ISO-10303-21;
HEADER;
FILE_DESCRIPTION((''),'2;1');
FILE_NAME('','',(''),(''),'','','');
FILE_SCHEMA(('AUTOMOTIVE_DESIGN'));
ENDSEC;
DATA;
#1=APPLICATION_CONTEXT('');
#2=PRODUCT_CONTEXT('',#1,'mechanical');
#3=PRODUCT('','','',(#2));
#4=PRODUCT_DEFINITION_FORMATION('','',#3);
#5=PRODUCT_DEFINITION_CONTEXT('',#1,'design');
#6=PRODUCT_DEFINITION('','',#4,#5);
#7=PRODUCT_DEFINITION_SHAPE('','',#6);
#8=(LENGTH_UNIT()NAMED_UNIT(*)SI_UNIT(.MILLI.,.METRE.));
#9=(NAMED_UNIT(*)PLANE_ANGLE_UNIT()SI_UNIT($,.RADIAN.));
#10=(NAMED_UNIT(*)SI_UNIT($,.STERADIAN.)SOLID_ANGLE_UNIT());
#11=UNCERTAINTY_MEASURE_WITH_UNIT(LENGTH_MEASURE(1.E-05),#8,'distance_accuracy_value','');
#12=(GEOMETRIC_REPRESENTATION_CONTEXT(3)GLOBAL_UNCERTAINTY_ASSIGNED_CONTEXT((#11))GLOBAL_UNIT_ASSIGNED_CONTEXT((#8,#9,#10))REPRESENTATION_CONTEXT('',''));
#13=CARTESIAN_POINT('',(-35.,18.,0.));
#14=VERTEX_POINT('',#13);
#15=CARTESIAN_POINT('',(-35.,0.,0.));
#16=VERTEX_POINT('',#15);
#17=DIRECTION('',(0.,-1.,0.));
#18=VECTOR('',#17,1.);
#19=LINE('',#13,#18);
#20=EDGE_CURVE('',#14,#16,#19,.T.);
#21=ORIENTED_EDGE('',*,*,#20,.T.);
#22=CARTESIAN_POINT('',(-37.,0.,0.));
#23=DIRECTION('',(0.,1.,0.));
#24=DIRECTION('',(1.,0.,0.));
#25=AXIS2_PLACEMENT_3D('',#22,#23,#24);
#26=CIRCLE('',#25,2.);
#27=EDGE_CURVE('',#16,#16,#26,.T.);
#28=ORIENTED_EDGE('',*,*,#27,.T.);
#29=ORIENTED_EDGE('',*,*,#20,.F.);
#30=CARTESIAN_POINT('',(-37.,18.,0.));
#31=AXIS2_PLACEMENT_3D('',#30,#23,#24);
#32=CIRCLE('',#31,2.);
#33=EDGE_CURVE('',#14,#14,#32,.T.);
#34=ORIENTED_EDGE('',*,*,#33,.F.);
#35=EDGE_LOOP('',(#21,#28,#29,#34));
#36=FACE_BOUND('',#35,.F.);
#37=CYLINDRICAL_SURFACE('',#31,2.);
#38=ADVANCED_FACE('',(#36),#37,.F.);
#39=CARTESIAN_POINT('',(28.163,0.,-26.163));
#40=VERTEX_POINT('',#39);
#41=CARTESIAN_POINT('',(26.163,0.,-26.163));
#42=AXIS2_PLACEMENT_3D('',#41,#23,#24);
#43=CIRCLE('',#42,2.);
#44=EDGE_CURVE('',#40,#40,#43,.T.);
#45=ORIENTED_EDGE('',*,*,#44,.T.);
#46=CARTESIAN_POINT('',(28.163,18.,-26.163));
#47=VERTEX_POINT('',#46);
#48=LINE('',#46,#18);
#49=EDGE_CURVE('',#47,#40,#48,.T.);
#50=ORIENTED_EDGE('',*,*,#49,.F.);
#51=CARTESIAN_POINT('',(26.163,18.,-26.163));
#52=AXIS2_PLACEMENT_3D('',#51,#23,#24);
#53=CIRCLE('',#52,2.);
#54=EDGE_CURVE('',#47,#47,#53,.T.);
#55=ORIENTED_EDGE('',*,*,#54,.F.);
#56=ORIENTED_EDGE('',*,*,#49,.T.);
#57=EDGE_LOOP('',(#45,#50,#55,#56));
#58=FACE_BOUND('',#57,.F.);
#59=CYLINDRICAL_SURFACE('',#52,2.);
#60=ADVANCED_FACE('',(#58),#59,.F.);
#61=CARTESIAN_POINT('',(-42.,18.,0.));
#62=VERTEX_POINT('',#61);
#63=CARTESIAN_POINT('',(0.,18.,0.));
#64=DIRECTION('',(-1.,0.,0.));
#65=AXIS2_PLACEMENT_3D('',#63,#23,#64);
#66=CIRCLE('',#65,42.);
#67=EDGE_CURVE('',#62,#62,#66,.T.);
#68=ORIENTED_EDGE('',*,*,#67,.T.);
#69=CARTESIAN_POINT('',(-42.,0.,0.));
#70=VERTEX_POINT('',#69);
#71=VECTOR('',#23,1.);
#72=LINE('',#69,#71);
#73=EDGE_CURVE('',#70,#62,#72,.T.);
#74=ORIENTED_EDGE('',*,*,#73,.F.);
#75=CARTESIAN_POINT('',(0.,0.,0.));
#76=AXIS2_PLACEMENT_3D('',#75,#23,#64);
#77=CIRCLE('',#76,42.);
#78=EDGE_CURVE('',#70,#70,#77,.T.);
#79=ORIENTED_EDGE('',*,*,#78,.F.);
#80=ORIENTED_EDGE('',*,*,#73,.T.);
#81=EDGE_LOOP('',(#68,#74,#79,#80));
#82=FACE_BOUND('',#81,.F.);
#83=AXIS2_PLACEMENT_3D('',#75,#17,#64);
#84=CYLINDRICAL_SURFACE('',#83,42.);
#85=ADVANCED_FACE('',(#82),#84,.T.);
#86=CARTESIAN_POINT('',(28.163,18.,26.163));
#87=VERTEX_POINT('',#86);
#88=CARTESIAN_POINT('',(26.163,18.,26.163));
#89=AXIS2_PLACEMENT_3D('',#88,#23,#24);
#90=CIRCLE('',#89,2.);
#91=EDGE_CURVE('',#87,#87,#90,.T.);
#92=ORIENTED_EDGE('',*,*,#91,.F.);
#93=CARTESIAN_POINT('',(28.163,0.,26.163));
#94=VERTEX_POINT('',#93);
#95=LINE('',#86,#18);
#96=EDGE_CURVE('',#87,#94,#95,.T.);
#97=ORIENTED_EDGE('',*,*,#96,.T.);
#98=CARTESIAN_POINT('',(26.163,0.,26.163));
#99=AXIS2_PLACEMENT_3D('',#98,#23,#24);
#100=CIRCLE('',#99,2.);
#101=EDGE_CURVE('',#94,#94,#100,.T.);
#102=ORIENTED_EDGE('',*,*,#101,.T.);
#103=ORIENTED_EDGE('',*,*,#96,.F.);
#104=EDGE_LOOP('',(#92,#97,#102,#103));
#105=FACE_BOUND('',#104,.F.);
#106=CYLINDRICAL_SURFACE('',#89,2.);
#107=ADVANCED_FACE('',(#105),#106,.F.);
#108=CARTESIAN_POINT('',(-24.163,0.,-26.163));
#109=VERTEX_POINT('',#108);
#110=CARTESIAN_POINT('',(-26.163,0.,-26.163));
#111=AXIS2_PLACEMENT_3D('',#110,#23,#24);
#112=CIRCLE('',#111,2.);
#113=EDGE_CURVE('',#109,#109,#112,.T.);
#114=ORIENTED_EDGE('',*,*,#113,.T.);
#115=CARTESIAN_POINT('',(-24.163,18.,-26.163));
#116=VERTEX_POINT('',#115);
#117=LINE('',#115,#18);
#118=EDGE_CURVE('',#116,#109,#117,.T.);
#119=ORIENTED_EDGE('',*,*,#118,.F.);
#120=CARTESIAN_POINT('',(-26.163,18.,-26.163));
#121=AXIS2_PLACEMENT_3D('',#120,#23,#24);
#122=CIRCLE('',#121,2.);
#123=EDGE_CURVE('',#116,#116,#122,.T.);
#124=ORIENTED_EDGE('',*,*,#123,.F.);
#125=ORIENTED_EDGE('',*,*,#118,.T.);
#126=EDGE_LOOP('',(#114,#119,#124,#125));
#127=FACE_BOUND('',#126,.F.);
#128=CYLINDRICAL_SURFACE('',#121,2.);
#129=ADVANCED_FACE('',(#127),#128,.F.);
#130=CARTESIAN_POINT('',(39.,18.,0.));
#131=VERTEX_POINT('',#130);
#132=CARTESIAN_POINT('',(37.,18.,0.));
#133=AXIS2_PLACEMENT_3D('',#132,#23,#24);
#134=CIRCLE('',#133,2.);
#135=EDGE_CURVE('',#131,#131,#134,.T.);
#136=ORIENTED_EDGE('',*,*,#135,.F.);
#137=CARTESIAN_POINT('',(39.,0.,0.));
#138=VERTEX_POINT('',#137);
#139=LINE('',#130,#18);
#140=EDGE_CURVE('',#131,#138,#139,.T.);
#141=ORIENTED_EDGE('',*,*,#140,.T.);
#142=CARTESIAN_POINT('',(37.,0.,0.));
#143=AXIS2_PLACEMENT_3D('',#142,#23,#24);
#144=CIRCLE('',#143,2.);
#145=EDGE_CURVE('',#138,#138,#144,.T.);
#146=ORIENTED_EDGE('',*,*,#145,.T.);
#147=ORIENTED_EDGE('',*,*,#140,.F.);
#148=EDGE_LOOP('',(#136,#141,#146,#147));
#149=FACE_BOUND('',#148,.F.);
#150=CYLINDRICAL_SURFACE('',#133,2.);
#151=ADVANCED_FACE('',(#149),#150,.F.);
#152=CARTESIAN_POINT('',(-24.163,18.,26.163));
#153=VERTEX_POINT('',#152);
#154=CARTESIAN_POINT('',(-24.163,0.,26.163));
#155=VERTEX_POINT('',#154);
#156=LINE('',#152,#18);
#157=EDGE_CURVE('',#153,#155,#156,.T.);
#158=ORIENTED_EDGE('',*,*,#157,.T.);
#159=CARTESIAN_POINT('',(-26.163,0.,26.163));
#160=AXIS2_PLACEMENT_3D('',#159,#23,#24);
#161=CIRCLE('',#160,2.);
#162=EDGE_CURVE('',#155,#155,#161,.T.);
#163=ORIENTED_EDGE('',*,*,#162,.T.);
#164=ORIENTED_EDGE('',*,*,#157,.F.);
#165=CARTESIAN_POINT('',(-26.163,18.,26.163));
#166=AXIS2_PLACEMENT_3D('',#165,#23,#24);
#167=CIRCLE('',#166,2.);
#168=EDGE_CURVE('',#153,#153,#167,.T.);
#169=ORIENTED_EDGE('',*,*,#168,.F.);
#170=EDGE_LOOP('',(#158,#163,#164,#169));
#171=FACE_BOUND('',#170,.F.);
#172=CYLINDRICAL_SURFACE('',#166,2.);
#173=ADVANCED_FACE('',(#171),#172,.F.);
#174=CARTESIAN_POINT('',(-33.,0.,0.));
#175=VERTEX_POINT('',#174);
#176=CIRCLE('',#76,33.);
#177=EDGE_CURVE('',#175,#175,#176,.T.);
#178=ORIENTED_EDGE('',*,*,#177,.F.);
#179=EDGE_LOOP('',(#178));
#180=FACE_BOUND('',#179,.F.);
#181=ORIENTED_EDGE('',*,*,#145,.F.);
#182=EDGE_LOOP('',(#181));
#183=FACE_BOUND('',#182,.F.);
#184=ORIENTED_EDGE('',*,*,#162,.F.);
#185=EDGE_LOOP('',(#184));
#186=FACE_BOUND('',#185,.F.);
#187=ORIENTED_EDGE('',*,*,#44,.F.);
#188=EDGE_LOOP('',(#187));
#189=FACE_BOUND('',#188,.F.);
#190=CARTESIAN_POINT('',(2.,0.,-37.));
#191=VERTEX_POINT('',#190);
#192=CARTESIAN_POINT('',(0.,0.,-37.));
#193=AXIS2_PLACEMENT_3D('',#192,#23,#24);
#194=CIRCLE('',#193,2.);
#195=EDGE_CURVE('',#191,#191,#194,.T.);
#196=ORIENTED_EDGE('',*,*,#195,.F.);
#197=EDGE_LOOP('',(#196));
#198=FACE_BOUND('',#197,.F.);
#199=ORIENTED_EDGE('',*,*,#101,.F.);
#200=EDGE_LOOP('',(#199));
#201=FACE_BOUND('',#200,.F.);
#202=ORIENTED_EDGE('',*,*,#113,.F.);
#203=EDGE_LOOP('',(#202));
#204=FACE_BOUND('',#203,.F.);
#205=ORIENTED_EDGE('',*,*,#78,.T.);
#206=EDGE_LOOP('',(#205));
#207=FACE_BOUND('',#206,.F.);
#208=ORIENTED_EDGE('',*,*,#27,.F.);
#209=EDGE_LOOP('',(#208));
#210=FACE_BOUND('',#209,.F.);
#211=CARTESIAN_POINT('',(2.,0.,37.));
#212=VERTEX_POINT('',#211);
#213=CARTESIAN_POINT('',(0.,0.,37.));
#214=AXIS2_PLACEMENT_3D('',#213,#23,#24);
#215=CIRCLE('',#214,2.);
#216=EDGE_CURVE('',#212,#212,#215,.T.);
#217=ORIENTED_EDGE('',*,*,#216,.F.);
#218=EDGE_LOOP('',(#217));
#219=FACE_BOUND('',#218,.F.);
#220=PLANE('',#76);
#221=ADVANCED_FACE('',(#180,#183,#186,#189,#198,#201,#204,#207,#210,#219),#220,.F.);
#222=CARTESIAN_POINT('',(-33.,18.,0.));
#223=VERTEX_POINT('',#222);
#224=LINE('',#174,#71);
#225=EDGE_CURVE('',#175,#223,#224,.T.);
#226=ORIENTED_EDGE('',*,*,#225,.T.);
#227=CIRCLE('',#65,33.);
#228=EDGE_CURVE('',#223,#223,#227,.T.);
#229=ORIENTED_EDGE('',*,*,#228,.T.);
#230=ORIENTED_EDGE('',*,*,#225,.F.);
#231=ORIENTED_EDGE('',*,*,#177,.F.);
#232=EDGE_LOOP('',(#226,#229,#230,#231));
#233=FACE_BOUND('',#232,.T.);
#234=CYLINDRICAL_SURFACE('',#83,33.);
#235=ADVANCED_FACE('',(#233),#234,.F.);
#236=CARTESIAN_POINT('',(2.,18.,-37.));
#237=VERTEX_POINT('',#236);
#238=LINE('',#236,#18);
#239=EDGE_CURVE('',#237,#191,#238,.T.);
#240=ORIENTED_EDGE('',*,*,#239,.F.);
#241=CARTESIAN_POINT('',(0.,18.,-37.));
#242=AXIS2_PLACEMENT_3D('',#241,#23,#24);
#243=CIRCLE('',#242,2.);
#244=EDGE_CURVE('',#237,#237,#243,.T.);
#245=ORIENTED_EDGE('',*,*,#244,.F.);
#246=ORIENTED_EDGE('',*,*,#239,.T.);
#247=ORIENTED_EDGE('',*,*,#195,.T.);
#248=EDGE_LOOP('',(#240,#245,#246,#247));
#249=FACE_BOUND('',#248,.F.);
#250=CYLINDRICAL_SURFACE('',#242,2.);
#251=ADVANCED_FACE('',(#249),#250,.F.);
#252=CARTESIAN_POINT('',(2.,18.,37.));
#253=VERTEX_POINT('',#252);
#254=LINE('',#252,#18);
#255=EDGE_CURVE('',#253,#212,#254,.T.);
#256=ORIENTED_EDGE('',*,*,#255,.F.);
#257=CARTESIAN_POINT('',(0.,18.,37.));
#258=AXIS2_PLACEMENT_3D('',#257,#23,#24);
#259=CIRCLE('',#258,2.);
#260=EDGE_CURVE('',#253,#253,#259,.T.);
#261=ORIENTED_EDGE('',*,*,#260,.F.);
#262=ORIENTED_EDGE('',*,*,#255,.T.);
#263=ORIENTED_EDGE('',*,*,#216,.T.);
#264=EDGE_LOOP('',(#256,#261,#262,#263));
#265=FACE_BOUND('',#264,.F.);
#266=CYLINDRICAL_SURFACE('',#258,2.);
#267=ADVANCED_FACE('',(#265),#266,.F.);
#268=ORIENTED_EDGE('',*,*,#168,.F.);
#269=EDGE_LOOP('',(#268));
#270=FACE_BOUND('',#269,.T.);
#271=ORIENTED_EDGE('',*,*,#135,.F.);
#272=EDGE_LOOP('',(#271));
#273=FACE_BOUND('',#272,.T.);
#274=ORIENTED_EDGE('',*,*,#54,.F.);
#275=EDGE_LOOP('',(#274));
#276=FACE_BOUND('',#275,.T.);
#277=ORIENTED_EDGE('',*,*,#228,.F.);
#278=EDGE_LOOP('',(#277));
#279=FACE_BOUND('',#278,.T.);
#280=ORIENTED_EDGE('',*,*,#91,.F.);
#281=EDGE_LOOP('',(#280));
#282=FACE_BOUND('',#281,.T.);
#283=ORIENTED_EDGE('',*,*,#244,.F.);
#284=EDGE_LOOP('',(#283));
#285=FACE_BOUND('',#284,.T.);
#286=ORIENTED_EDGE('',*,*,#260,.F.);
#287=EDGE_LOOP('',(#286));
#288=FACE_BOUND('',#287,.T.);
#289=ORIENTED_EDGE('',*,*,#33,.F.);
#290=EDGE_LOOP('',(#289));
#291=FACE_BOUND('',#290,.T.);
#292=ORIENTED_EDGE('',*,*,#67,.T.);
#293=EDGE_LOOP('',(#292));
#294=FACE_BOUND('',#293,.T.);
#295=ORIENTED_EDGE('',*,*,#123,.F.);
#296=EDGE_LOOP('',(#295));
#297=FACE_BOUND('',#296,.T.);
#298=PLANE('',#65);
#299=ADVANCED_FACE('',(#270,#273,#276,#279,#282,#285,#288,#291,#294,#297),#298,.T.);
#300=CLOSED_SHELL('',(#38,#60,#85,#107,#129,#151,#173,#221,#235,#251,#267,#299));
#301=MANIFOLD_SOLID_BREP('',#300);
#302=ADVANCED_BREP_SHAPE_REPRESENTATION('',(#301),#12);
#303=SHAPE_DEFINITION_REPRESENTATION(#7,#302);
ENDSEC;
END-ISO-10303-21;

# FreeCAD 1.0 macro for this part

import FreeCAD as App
import Part
import Sketcher
from FreeCAD import Vector
Q = App.Units.Quantity

doc = App.newDocument("Part")
body = doc.addObject("PartDesign::Body", "Body")

sketch1 = body.newObject("Sketcher::SketchObject", "Sketch")
sketch1.AttachmentSupport = (doc.getObject("XZ_Plane"), [""])
sketch1.MapMode = "FlatFace"
sketch1.addGeometry([
    Part.Circle(Vector(0, 0, 0), Vector(0, 0, 1), 42),
    Part.Circle(Vector(0, 0, 0), Vector(0, 0, 1), 33),
], False)
sketch1.addConstraint([
    Sketcher.Constraint("Coincident", 0, 3, -1, 1),
    Sketcher.Constraint("Coincident", 1, 3, -1, 1),
    Sketcher.Constraint("Diameter", 0, Q("84 mm")),
    Sketcher.Constraint("Diameter", 1, Q("66 mm")),
])
pad1 = body.newObject("PartDesign::Pad", "Pad")
pad1.Profile = sketch1
pad1.Length = 18
pad1.Reversed = True

sketch2 = body.newObject("Sketcher::SketchObject", "Sketch001")
sketch2.AttachmentSupport = (doc.getObject("XZ_Plane"), [""])
sketch2.MapMode = "FlatFace"
sketch2.AttachmentOffset = App.Placement(Vector(0, 0, -18), App.Rotation())
sketch2.addGeometry([
    Part.Circle(Vector(0, -37, 0), Vector(0, 0, 1), 2),
    Part.Circle(Vector(-26.2, -26.2, 0), Vector(0, 0, 1), 2),
    Part.Circle(Vector(-37, 0, 0), Vector(0, 0, 1), 2),
    Part.Circle(Vector(-26.2, 26.2, 0), Vector(0, 0, 1), 2),
    Part.Circle(Vector(0, 37, 0), Vector(0, 0, 1), 2),
    Part.Circle(Vector(26.2, 26.2, 0), Vector(0, 0, 1), 2),
    Part.Circle(Vector(37, 0, 0), Vector(0, 0, 1), 2),
    Part.Circle(Vector(26.2, -26.2, 0), Vector(0, 0, 1), 2),
], False)
sketch2.addConstraint([
    Sketcher.Constraint("Equal", 0, 1),
    Sketcher.Constraint("Equal", 1, 2),
    Sketcher.Constraint("Equal", 2, 3),
    Sketcher.Constraint("Equal", 3, 4),
    Sketcher.Constraint("Equal", 4, 5),
    Sketcher.Constraint("Equal", 5, 6),
    Sketcher.Constraint("Equal", 6, 7),
    Sketcher.Constraint("Symmetric", 0, 3, 4, 3, -1, 1),
    Sketcher.Constraint("Symmetric", 1, 3, 5, 3, -1, 1),
    Sketcher.Constraint("Symmetric", 2, 3, 6, 3, -1, 1),
    Sketcher.Constraint("Symmetric", 3, 3, 7, 3, -1, 1),
    Sketcher.Constraint("Symmetric", 3, 3, 5, 3, -2),
    Sketcher.Constraint("PointOnObject", 0, 3, -2),
    Sketcher.Constraint("PointOnObject", 2, 3, -1),
    Sketcher.Constraint("Diameter", 0, Q("4 mm")),
    Sketcher.Constraint("DistanceY", 0, 3, -1, 1, Q("37 mm")),
    Sketcher.Constraint("DistanceX", 2, 3, -1, 1, Q("37 mm")),
    Sketcher.Constraint("DistanceX", 1, 3, -1, 1, Q("26.163 mm")),
    Sketcher.Constraint("DistanceY", 1, 3, -1, 1, Q("26.163 mm")),
])
pocket1 = body.newObject("PartDesign::Pocket", "Pocket")
pocket1.Profile = sketch2
pocket1.Length = 18
pocket1.Reversed = True

doc.recompute()
